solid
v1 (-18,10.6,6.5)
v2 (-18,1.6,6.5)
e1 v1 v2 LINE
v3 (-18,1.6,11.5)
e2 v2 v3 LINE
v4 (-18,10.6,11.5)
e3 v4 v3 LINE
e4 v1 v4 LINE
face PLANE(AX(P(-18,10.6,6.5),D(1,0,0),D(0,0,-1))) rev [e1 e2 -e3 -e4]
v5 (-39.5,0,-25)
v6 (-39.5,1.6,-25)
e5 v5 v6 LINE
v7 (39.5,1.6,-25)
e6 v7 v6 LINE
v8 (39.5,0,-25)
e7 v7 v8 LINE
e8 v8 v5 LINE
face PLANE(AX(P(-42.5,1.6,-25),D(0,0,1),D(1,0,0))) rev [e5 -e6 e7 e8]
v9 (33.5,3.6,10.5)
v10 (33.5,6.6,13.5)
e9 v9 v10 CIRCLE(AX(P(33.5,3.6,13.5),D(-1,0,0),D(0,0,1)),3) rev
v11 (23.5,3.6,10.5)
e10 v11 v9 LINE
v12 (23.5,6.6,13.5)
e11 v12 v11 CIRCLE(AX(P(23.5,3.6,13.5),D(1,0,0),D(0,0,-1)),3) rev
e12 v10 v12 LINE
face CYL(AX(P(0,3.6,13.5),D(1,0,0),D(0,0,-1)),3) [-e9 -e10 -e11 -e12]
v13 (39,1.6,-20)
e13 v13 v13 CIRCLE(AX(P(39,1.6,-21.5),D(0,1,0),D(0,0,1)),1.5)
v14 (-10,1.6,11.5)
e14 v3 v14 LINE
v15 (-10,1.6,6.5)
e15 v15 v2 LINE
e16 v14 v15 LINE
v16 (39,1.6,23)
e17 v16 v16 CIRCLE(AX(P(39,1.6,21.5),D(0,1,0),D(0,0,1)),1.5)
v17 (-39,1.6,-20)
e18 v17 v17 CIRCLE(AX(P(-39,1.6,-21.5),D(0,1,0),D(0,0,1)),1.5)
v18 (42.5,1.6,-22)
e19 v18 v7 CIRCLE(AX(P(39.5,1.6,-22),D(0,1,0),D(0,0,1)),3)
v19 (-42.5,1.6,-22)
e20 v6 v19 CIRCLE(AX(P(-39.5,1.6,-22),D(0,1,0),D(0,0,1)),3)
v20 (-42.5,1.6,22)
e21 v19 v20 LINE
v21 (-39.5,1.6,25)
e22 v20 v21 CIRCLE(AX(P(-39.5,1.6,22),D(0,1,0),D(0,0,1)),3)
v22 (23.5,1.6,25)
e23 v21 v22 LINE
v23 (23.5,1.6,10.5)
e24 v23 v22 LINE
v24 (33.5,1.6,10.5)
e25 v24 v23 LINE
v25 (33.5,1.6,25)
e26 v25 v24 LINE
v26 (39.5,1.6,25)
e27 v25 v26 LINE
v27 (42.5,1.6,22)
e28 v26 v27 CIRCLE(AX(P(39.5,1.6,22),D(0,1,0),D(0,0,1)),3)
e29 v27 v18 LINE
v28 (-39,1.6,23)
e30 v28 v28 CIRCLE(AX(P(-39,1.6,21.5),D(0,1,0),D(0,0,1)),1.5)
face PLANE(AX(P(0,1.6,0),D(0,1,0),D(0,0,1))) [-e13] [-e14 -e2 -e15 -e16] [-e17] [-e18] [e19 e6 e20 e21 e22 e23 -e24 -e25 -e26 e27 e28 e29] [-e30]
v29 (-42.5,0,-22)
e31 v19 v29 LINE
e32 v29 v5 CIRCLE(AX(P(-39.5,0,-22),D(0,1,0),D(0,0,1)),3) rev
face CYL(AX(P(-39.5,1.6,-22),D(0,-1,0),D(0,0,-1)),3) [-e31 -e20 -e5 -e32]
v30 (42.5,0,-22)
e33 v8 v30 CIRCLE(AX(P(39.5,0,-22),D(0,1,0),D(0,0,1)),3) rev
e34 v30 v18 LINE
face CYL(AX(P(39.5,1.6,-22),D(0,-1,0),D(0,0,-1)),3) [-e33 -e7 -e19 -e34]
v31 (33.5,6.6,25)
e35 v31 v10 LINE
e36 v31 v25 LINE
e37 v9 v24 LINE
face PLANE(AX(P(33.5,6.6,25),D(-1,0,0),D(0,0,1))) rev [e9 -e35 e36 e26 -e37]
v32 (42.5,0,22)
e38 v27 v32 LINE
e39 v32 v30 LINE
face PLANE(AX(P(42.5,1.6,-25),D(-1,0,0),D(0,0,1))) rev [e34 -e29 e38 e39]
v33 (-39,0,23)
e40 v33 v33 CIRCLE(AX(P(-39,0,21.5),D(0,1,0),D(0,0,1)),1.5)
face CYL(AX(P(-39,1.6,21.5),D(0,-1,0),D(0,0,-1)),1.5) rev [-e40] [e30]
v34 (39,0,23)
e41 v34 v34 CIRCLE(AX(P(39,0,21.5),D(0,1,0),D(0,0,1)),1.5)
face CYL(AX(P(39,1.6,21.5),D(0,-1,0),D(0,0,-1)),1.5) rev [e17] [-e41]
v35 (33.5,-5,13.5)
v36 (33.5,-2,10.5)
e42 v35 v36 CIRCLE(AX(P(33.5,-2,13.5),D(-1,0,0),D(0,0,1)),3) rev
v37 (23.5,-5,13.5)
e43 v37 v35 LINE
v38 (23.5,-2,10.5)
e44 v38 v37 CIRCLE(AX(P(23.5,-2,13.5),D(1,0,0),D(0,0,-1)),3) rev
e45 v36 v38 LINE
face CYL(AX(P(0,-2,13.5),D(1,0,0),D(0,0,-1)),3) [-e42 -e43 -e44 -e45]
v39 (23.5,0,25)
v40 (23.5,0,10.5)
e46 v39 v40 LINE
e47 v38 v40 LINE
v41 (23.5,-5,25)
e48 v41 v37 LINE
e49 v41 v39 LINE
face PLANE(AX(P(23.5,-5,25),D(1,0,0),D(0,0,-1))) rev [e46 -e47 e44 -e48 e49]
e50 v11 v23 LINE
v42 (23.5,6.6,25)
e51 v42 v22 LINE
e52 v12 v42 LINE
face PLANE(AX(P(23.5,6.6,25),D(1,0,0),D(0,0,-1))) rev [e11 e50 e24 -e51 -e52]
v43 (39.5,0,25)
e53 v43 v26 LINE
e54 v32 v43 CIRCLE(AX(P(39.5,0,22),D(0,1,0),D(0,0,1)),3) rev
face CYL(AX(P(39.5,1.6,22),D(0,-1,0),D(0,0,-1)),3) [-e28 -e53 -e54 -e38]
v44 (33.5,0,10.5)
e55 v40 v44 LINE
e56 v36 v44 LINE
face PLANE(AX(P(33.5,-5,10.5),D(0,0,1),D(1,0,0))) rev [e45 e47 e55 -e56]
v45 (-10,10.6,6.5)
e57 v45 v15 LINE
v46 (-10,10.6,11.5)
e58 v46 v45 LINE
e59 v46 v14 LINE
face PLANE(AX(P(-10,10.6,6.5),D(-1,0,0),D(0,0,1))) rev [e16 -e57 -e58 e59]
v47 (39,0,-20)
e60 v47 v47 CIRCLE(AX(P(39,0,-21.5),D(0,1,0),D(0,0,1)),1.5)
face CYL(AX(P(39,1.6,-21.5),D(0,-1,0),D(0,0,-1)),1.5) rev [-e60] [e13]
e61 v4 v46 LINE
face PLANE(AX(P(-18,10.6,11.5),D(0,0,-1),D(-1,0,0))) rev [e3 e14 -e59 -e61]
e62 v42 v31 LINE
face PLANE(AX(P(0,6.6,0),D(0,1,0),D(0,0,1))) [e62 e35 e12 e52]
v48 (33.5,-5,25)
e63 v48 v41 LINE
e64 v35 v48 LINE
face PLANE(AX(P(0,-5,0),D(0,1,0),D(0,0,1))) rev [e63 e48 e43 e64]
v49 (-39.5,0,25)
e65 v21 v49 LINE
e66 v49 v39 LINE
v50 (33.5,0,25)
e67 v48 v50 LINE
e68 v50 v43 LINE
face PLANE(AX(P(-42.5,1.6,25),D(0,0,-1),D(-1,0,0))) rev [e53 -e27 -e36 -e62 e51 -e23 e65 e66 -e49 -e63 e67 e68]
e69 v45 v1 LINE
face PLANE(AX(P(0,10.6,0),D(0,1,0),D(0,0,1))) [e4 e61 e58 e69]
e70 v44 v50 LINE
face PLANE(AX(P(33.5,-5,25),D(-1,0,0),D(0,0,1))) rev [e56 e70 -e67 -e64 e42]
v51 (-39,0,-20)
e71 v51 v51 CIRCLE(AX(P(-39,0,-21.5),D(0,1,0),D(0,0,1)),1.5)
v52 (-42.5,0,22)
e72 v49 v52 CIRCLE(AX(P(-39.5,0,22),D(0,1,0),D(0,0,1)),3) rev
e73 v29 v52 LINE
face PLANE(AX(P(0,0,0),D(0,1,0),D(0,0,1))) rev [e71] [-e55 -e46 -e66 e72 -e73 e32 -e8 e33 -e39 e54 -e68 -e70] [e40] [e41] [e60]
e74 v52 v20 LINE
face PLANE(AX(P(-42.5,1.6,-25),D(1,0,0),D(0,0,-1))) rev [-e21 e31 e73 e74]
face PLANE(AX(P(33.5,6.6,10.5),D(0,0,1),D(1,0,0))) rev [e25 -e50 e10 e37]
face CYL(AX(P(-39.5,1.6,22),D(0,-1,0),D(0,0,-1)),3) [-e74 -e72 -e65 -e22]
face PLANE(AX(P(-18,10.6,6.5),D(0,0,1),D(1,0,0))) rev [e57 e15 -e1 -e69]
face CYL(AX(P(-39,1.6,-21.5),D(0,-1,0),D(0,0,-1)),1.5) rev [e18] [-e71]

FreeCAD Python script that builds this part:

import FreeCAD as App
import Part
import Sketcher


def edges_at(feature, points):
    """Names of the edges that pass closest to the given points."""
    edges = feature.Shape.Edges
    near = lambda p: min(range(len(edges)), key=lambda i: edges[i].distToShape(Part.Vertex(*p))[0])
    return sorted({f"Edge{near(p) + 1}" for p in points})

doc = App.newDocument("Part")
body = doc.addObject("PartDesign::Body", "Body")

# Sketch on XZ plane
sketch1 = body.newObject("Sketcher::SketchObject", "Sketch")
sketch1.AttachmentSupport = (doc.getObject("XZ_Plane"), [""])
sketch1.MapMode = "FlatFace"
sketch1.addGeometry([
    Part.LineSegment(App.Vector(-42.5, -25, 0), App.Vector(-42.5, 25, 0)),  # 0
    Part.LineSegment(App.Vector(-42.5, 25, 0), App.Vector(42.5, 25, 0)),  # 1
    Part.LineSegment(App.Vector(42.5, 25, 0), App.Vector(42.5, -25, 0)),  # 2
    Part.LineSegment(App.Vector(42.5, -25, 0), App.Vector(-42.5, -25, 0)),  # 3
    Part.Circle(App.Vector(-39, 21.5, 0), App.Vector(0, 0, 1), 1.5),  # 4
    Part.Circle(App.Vector(39, 21.5, 0), App.Vector(0, 0, 1), 1.5),  # 5
    Part.Circle(App.Vector(-39, -21.5, 0), App.Vector(0, 0, 1), 1.5),  # 6
    Part.Circle(App.Vector(39, -21.5, 0), App.Vector(0, 0, 1), 1.5),  # 7
], False)
sketch1.addConstraint([
    Sketcher.Constraint("Coincident", 0, 2, 1, 1),
    Sketcher.Constraint("Coincident", 1, 2, 2, 1),
    Sketcher.Constraint("Coincident", 2, 2, 3, 1),
    Sketcher.Constraint("Coincident", 3, 2, 0, 1),
    Sketcher.Constraint("Vertical", 0),
    Sketcher.Constraint("Horizontal", 1),
    Sketcher.Constraint("Vertical", 2),
    Sketcher.Constraint("Horizontal", 3),
    Sketcher.Constraint("Equal", 4, 5),
    Sketcher.Constraint("Equal", 5, 6),
    Sketcher.Constraint("Equal", 6, 7),
    Sketcher.Constraint("Symmetric", 5, 3, 6, 3, -1, 1),
    Sketcher.Constraint("Symmetric", 4, 3, 7, 3, -1, 1),
    Sketcher.Constraint("Symmetric", 0, 2, 2, 2, -1, 1),
    Sketcher.Constraint("Symmetric", 4, 3, 5, 3, -2),
    Sketcher.Constraint("Diameter", 4, 3.0),
    Sketcher.Constraint("DistanceX", 1, 1, 1, 2, 85.0),
    Sketcher.Constraint("DistanceY", 0, 1, 0, 2, 50.0),
    Sketcher.Constraint("DistanceX", 4, 3, -1, 1, 39.0),
    Sketcher.Constraint("DistanceY", 6, 3, 4, 3, 43.0),
])
pad1 = body.newObject("PartDesign::Pad", "Pad")
pad1.Profile = sketch1
pad1.Length = 1.6
pad1.Reversed = True
doc.recompute()

fillet = body.newObject("PartDesign::Fillet", "Fillet")
fillet.Base = (pad1, edges_at(pad1, [
    (42.5, 0.8, 25),
    (-42.5, 0.8, 25),
    (-42.5, 0.8, -25),
    (42.5, 0.8, -25),
]))
fillet.Radius = 3

# Sketch on XZ plane
sketch2 = body.newObject("Sketcher::SketchObject", "Sketch001")
sketch2.AttachmentSupport = (doc.getObject("XZ_Plane"), [""])
sketch2.MapMode = "FlatFace"
sketch2.AttachmentOffset = App.Placement(App.Vector(0, 0, -1.6), App.Rotation())
sketch2.addGeometry([
    Part.LineSegment(App.Vector(24, 10, 0), App.Vector(24, 25, 0)),
    Part.LineSegment(App.Vector(24, 25, 0), App.Vector(34, 25, 0)),
    Part.LineSegment(App.Vector(34, 25, 0), App.Vector(34, 10, 0)),
    Part.LineSegment(App.Vector(34, 10, 0), App.Vector(24, 10, 0)),
], False)
sketch2.addConstraint([
    Sketcher.Constraint("Coincident", 0, 2, 1, 1),
    Sketcher.Constraint("Coincident", 1, 2, 2, 1),
    Sketcher.Constraint("Coincident", 2, 2, 3, 1),
    Sketcher.Constraint("Coincident", 3, 2, 0, 1),
    Sketcher.Constraint("Vertical", 0),
    Sketcher.Constraint("Horizontal", 1),
    Sketcher.Constraint("Vertical", 2),
    Sketcher.Constraint("Horizontal", 3),
    Sketcher.Constraint("DistanceX", 1, 1, 1, 2, 10.0),
    Sketcher.Constraint("DistanceY", 0, 1, 0, 2, 14.5),
    Sketcher.Constraint("DistanceY", -1, 1, 0, 2, 25.0),
    Sketcher.Constraint("DistanceX", -1, 1, 0, 2, 23.5),
])
pad2 = body.newObject("PartDesign::Pad", "Pad001")
pad2.Profile = sketch2
pad2.Length = 5
pad2.Reversed = True

# Sketch on XZ plane
sketch3 = body.newObject("Sketcher::SketchObject", "Sketch002")
sketch3.AttachmentSupport = (doc.getObject("XZ_Plane"), [""])
sketch3.MapMode = "FlatFace"
sketch3.AttachmentOffset = App.Placement(App.Vector(0, 0, -1.6), App.Rotation())
sketch3.addGeometry([
    Part.LineSegment(App.Vector(-18, 6, 0), App.Vector(-18, 12, 0)),
    Part.LineSegment(App.Vector(-18, 12, 0), App.Vector(-10, 12, 0)),
    Part.LineSegment(App.Vector(-10, 12, 0), App.Vector(-10, 6, 0)),
    Part.LineSegment(App.Vector(-10, 6, 0), App.Vector(-18, 6, 0)),
], False)
sketch3.addConstraint([
    Sketcher.Constraint("Coincident", 0, 2, 1, 1),
    Sketcher.Constraint("Coincident", 1, 2, 2, 1),
    Sketcher.Constraint("Coincident", 2, 2, 3, 1),
    Sketcher.Constraint("Coincident", 3, 2, 0, 1),
    Sketcher.Constraint("Vertical", 0),
    Sketcher.Constraint("Horizontal", 1),
    Sketcher.Constraint("Vertical", 2),
    Sketcher.Constraint("Horizontal", 3),
    Sketcher.Constraint("DistanceX", 1, 1, 1, 2, 8.0),
    Sketcher.Constraint("DistanceY", 0, 1, 0, 2, 5.0),
    Sketcher.Constraint("DistanceX", 0, 2, -1, 1, 18.0),
    Sketcher.Constraint("DistanceY", -1, 1, 0, 2, 11.5),
])
pad3 = body.newObject("PartDesign::Pad", "Pad002")
pad3.Profile = sketch3
pad3.Length = 9
pad3.Reversed = True

# Sketch on XZ plane
sketch4 = body.newObject("Sketcher::SketchObject", "Sketch003")
sketch4.AttachmentSupport = (doc.getObject("XZ_Plane"), [""])
sketch4.MapMode = "FlatFace"
sketch4.addGeometry([
    Part.LineSegment(App.Vector(24, 25, 0), App.Vector(24, 10, 0)),
    Part.LineSegment(App.Vector(24, 10, 0), App.Vector(34, 10, 0)),
    Part.LineSegment(App.Vector(34, 10, 0), App.Vector(34, 25, 0)),
    Part.LineSegment(App.Vector(34, 25, 0), App.Vector(24, 25, 0)),
], False)
sketch4.addConstraint([
    Sketcher.Constraint("Coincident", 0, 2, 1, 1),
    Sketcher.Constraint("Coincident", 1, 2, 2, 1),
    Sketcher.Constraint("Coincident", 2, 2, 3, 1),
    Sketcher.Constraint("Coincident", 3, 2, 0, 1),
    Sketcher.Constraint("Vertical", 0),
    Sketcher.Constraint("Horizontal", 1),
    Sketcher.Constraint("Vertical", 2),
    Sketcher.Constraint("Horizontal", 3),
    Sketcher.Constraint("DistanceX", 1, 1, 1, 2, 10.0),
    Sketcher.Constraint("DistanceY", 0, 2, 0, 1, 14.5),
    Sketcher.Constraint("DistanceY", -1, 1, 2, 2, 25.0),
    Sketcher.Constraint("DistanceX", -1, 1, 0, 2, 23.5),
])
pad4 = body.newObject("PartDesign::Pad", "Pad003")
pad4.Profile = sketch4
pad4.Length = 5
doc.recompute()

fillet2 = body.newObject("PartDesign::Fillet", "Fillet001")
fillet2.Base = (pad4, edges_at(pad4, [(28.5, 6.6, 10.5), (28.5, -5, 10.5)]))
fillet2.Radius = 3

doc.recompute()
